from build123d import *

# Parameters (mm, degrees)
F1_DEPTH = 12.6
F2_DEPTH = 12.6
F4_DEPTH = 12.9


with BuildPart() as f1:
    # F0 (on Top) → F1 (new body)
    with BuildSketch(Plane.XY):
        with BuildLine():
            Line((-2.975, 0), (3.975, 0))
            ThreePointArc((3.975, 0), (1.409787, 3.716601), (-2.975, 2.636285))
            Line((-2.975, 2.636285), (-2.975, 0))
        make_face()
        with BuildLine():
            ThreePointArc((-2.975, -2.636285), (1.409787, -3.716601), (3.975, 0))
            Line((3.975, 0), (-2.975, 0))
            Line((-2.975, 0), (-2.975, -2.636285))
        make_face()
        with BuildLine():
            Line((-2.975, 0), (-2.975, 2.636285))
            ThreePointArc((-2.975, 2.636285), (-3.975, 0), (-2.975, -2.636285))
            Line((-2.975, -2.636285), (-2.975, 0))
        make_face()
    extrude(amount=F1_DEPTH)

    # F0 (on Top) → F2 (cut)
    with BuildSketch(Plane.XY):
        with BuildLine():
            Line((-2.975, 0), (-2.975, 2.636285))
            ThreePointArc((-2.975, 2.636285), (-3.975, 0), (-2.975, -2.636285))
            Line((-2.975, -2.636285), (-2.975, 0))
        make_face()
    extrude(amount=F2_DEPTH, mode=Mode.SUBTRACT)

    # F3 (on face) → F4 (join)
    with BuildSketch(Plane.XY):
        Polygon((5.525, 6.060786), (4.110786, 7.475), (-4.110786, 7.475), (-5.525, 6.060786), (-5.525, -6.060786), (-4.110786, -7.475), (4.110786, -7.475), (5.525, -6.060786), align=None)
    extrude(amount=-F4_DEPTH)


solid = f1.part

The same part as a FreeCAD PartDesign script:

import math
import FreeCAD as App
import Part
import Sketcher

doc = App.newDocument("Part")
body = doc.addObject("PartDesign::Body", "Body")

# Sketch on XY plane
sketch1 = doc.addObject("Sketcher::SketchObject", "Sketch")
body.addObject(sketch1)
sketch1.AttachmentSupport = (doc.XY_Plane, [""])
sketch1.MapMode = "FlatFace"
sketch1.addGeometry([
    Part.ArcOfCircle(Part.Circle(App.Vector(0, 0, 0), App.Vector(0, 0, 1), 4), math.radians(0), math.radians(138)),
    Part.ArcOfCircle(Part.Circle(App.Vector(0, 0, 0), App.Vector(0, 0, 1), 4), math.radians(138), math.radians(222)),
    Part.ArcOfCircle(Part.Circle(App.Vector(0, 0, 0), App.Vector(0, 0, 1), 4), math.radians(-138), math.radians(0)),
], False)
sketch1.addConstraint([
    Sketcher.Constraint("Tangent", 0, 2, 1, 1),
    Sketcher.Constraint("Tangent", 1, 2, 2, 1),
    Sketcher.Constraint("Tangent", 2, 2, 0, 1),
    Sketcher.Constraint("Coincident", 0, 3, -1, 1),
    Sketcher.Constraint("PointOnObject", 2, 2, -1),
    Sketcher.Constraint("Vertical", 0, 2, 1, 2),
    Sketcher.Constraint("Radius", 0, 3.975),
    Sketcher.Constraint("DistanceX", 0, 2, 2, 2, 6.95),
])
pad1 = doc.addObject("PartDesign::Pad", "Pad")
body.addObject(pad1)
pad1.Profile = sketch1
pad1.Length = 12.6

# Sketch on XY plane
sketch2 = doc.addObject("Sketcher::SketchObject", "Sketch001")
body.addObject(sketch2)
sketch2.AttachmentSupport = (doc.XY_Plane, [""])
sketch2.MapMode = "FlatFace"
sketch2.addGeometry([
    Part.ArcOfCircle(Part.Circle(App.Vector(0, 0, 0), App.Vector(0, 0, 1), 4), math.radians(138), math.radians(222)),
    Part.LineSegment(App.Vector(-3, -2.6, 0), App.Vector(-3, 2.6, 0)),
], False)
sketch2.addConstraint([
    Sketcher.Constraint("Coincident", 0, 1, 1, 2),
    Sketcher.Constraint("Coincident", 1, 1, 0, 2),
    Sketcher.Constraint("Vertical", 1),
    Sketcher.Constraint("Coincident", 0, 3, -1, 1),
    Sketcher.Constraint("Radius", 0, 3.974999),
    Sketcher.Constraint("DistanceX", 0, 1, -1, 1, 2.975),
])
pocket1 = doc.addObject("PartDesign::Pocket", "Pocket")
body.addObject(pocket1)
pocket1.Profile = sketch2
pocket1.Length = 12.6
pocket1.Reversed = True

# Sketch on XY plane
sketch3 = doc.addObject("Sketcher::SketchObject", "Sketch002")
body.addObject(sketch3)
sketch3.AttachmentSupport = (doc.XY_Plane, [""])
sketch3.MapMode = "FlatFace"
sketch3.addGeometry([
    Part.LineSegment(App.Vector(5.5, 6.1, 0), App.Vector(4.1, 7.5, 0)),  # 0
    Part.LineSegment(App.Vector(4.1, 7.5, 0), App.Vector(-4.1, 7.5, 0)),  # 1
    Part.LineSegment(App.Vector(-4.1, 7.5, 0), App.Vector(-5.5, 6.1, 0)),  # 2
    Part.LineSegment(App.Vector(-5.5, 6.1, 0), App.Vector(-5.5, -6.1, 0)),  # 3
    Part.LineSegment(App.Vector(-5.5, -6.1, 0), App.Vector(-4.1, -7.5, 0)),  # 4
    Part.LineSegment(App.Vector(-4.1, -7.5, 0), App.Vector(4.1, -7.5, 0)),  # 5
    Part.LineSegment(App.Vector(4.1, -7.5, 0), App.Vector(5.5, -6.1, 0)),  # 6
    Part.LineSegment(App.Vector(5.5, -6.1, 0), App.Vector(5.5, 6.1, 0)),  # 7
], False)
sketch3.addConstraint([
    Sketcher.Constraint("Coincident", 0, 2, 1, 1),
    Sketcher.Constraint("Coincident", 1, 2, 2, 1),
    Sketcher.Constraint("Coincident", 2, 2, 3, 1),
    Sketcher.Constraint("Coincident", 3, 2, 4, 1),
    Sketcher.Constraint("Coincident", 4, 2, 5, 1),
    Sketcher.Constraint("Coincident", 5, 2, 6, 1),
    Sketcher.Constraint("Coincident", 6, 2, 7, 1),
    Sketcher.Constraint("Coincident", 7, 2, 0, 1),
    Sketcher.Constraint("Horizontal", 1),
    Sketcher.Constraint("Vertical", 3),
    Sketcher.Constraint("Horizontal", 5),
    Sketcher.Constraint("Vertical", 7),
    Sketcher.Constraint("Symmetric", 0, 2, 4, 2, -1, 1),
    Sketcher.Constraint("Symmetric", 2, 2, 6, 2, -1, 1),
    Sketcher.Constraint("Perpendicular", 0, 2),
    Sketcher.Constraint("Perpendicular", 2, 4),
    Sketcher.Constraint("Perpendicular", 4, 6),
    Sketcher.Constraint("Horizontal", 3, 2, 6, 2),
    Sketcher.Constraint("Vertical", 1, 2, 4, 2),
    Sketcher.Constraint("Distance", 0, 2.000001),
    Sketcher.Constraint("DistanceY", 4, 2, 1, 2, 14.95),
    Sketcher.Constraint("DistanceX", 3, 2, 6, 2, 11.05),
])
pad2 = doc.addObject("PartDesign::Pad", "Pad001")
body.addObject(pad2)
pad2.Profile = sketch3
pad2.Length = 12.9
pad2.Reversed = True

doc.recompute()
